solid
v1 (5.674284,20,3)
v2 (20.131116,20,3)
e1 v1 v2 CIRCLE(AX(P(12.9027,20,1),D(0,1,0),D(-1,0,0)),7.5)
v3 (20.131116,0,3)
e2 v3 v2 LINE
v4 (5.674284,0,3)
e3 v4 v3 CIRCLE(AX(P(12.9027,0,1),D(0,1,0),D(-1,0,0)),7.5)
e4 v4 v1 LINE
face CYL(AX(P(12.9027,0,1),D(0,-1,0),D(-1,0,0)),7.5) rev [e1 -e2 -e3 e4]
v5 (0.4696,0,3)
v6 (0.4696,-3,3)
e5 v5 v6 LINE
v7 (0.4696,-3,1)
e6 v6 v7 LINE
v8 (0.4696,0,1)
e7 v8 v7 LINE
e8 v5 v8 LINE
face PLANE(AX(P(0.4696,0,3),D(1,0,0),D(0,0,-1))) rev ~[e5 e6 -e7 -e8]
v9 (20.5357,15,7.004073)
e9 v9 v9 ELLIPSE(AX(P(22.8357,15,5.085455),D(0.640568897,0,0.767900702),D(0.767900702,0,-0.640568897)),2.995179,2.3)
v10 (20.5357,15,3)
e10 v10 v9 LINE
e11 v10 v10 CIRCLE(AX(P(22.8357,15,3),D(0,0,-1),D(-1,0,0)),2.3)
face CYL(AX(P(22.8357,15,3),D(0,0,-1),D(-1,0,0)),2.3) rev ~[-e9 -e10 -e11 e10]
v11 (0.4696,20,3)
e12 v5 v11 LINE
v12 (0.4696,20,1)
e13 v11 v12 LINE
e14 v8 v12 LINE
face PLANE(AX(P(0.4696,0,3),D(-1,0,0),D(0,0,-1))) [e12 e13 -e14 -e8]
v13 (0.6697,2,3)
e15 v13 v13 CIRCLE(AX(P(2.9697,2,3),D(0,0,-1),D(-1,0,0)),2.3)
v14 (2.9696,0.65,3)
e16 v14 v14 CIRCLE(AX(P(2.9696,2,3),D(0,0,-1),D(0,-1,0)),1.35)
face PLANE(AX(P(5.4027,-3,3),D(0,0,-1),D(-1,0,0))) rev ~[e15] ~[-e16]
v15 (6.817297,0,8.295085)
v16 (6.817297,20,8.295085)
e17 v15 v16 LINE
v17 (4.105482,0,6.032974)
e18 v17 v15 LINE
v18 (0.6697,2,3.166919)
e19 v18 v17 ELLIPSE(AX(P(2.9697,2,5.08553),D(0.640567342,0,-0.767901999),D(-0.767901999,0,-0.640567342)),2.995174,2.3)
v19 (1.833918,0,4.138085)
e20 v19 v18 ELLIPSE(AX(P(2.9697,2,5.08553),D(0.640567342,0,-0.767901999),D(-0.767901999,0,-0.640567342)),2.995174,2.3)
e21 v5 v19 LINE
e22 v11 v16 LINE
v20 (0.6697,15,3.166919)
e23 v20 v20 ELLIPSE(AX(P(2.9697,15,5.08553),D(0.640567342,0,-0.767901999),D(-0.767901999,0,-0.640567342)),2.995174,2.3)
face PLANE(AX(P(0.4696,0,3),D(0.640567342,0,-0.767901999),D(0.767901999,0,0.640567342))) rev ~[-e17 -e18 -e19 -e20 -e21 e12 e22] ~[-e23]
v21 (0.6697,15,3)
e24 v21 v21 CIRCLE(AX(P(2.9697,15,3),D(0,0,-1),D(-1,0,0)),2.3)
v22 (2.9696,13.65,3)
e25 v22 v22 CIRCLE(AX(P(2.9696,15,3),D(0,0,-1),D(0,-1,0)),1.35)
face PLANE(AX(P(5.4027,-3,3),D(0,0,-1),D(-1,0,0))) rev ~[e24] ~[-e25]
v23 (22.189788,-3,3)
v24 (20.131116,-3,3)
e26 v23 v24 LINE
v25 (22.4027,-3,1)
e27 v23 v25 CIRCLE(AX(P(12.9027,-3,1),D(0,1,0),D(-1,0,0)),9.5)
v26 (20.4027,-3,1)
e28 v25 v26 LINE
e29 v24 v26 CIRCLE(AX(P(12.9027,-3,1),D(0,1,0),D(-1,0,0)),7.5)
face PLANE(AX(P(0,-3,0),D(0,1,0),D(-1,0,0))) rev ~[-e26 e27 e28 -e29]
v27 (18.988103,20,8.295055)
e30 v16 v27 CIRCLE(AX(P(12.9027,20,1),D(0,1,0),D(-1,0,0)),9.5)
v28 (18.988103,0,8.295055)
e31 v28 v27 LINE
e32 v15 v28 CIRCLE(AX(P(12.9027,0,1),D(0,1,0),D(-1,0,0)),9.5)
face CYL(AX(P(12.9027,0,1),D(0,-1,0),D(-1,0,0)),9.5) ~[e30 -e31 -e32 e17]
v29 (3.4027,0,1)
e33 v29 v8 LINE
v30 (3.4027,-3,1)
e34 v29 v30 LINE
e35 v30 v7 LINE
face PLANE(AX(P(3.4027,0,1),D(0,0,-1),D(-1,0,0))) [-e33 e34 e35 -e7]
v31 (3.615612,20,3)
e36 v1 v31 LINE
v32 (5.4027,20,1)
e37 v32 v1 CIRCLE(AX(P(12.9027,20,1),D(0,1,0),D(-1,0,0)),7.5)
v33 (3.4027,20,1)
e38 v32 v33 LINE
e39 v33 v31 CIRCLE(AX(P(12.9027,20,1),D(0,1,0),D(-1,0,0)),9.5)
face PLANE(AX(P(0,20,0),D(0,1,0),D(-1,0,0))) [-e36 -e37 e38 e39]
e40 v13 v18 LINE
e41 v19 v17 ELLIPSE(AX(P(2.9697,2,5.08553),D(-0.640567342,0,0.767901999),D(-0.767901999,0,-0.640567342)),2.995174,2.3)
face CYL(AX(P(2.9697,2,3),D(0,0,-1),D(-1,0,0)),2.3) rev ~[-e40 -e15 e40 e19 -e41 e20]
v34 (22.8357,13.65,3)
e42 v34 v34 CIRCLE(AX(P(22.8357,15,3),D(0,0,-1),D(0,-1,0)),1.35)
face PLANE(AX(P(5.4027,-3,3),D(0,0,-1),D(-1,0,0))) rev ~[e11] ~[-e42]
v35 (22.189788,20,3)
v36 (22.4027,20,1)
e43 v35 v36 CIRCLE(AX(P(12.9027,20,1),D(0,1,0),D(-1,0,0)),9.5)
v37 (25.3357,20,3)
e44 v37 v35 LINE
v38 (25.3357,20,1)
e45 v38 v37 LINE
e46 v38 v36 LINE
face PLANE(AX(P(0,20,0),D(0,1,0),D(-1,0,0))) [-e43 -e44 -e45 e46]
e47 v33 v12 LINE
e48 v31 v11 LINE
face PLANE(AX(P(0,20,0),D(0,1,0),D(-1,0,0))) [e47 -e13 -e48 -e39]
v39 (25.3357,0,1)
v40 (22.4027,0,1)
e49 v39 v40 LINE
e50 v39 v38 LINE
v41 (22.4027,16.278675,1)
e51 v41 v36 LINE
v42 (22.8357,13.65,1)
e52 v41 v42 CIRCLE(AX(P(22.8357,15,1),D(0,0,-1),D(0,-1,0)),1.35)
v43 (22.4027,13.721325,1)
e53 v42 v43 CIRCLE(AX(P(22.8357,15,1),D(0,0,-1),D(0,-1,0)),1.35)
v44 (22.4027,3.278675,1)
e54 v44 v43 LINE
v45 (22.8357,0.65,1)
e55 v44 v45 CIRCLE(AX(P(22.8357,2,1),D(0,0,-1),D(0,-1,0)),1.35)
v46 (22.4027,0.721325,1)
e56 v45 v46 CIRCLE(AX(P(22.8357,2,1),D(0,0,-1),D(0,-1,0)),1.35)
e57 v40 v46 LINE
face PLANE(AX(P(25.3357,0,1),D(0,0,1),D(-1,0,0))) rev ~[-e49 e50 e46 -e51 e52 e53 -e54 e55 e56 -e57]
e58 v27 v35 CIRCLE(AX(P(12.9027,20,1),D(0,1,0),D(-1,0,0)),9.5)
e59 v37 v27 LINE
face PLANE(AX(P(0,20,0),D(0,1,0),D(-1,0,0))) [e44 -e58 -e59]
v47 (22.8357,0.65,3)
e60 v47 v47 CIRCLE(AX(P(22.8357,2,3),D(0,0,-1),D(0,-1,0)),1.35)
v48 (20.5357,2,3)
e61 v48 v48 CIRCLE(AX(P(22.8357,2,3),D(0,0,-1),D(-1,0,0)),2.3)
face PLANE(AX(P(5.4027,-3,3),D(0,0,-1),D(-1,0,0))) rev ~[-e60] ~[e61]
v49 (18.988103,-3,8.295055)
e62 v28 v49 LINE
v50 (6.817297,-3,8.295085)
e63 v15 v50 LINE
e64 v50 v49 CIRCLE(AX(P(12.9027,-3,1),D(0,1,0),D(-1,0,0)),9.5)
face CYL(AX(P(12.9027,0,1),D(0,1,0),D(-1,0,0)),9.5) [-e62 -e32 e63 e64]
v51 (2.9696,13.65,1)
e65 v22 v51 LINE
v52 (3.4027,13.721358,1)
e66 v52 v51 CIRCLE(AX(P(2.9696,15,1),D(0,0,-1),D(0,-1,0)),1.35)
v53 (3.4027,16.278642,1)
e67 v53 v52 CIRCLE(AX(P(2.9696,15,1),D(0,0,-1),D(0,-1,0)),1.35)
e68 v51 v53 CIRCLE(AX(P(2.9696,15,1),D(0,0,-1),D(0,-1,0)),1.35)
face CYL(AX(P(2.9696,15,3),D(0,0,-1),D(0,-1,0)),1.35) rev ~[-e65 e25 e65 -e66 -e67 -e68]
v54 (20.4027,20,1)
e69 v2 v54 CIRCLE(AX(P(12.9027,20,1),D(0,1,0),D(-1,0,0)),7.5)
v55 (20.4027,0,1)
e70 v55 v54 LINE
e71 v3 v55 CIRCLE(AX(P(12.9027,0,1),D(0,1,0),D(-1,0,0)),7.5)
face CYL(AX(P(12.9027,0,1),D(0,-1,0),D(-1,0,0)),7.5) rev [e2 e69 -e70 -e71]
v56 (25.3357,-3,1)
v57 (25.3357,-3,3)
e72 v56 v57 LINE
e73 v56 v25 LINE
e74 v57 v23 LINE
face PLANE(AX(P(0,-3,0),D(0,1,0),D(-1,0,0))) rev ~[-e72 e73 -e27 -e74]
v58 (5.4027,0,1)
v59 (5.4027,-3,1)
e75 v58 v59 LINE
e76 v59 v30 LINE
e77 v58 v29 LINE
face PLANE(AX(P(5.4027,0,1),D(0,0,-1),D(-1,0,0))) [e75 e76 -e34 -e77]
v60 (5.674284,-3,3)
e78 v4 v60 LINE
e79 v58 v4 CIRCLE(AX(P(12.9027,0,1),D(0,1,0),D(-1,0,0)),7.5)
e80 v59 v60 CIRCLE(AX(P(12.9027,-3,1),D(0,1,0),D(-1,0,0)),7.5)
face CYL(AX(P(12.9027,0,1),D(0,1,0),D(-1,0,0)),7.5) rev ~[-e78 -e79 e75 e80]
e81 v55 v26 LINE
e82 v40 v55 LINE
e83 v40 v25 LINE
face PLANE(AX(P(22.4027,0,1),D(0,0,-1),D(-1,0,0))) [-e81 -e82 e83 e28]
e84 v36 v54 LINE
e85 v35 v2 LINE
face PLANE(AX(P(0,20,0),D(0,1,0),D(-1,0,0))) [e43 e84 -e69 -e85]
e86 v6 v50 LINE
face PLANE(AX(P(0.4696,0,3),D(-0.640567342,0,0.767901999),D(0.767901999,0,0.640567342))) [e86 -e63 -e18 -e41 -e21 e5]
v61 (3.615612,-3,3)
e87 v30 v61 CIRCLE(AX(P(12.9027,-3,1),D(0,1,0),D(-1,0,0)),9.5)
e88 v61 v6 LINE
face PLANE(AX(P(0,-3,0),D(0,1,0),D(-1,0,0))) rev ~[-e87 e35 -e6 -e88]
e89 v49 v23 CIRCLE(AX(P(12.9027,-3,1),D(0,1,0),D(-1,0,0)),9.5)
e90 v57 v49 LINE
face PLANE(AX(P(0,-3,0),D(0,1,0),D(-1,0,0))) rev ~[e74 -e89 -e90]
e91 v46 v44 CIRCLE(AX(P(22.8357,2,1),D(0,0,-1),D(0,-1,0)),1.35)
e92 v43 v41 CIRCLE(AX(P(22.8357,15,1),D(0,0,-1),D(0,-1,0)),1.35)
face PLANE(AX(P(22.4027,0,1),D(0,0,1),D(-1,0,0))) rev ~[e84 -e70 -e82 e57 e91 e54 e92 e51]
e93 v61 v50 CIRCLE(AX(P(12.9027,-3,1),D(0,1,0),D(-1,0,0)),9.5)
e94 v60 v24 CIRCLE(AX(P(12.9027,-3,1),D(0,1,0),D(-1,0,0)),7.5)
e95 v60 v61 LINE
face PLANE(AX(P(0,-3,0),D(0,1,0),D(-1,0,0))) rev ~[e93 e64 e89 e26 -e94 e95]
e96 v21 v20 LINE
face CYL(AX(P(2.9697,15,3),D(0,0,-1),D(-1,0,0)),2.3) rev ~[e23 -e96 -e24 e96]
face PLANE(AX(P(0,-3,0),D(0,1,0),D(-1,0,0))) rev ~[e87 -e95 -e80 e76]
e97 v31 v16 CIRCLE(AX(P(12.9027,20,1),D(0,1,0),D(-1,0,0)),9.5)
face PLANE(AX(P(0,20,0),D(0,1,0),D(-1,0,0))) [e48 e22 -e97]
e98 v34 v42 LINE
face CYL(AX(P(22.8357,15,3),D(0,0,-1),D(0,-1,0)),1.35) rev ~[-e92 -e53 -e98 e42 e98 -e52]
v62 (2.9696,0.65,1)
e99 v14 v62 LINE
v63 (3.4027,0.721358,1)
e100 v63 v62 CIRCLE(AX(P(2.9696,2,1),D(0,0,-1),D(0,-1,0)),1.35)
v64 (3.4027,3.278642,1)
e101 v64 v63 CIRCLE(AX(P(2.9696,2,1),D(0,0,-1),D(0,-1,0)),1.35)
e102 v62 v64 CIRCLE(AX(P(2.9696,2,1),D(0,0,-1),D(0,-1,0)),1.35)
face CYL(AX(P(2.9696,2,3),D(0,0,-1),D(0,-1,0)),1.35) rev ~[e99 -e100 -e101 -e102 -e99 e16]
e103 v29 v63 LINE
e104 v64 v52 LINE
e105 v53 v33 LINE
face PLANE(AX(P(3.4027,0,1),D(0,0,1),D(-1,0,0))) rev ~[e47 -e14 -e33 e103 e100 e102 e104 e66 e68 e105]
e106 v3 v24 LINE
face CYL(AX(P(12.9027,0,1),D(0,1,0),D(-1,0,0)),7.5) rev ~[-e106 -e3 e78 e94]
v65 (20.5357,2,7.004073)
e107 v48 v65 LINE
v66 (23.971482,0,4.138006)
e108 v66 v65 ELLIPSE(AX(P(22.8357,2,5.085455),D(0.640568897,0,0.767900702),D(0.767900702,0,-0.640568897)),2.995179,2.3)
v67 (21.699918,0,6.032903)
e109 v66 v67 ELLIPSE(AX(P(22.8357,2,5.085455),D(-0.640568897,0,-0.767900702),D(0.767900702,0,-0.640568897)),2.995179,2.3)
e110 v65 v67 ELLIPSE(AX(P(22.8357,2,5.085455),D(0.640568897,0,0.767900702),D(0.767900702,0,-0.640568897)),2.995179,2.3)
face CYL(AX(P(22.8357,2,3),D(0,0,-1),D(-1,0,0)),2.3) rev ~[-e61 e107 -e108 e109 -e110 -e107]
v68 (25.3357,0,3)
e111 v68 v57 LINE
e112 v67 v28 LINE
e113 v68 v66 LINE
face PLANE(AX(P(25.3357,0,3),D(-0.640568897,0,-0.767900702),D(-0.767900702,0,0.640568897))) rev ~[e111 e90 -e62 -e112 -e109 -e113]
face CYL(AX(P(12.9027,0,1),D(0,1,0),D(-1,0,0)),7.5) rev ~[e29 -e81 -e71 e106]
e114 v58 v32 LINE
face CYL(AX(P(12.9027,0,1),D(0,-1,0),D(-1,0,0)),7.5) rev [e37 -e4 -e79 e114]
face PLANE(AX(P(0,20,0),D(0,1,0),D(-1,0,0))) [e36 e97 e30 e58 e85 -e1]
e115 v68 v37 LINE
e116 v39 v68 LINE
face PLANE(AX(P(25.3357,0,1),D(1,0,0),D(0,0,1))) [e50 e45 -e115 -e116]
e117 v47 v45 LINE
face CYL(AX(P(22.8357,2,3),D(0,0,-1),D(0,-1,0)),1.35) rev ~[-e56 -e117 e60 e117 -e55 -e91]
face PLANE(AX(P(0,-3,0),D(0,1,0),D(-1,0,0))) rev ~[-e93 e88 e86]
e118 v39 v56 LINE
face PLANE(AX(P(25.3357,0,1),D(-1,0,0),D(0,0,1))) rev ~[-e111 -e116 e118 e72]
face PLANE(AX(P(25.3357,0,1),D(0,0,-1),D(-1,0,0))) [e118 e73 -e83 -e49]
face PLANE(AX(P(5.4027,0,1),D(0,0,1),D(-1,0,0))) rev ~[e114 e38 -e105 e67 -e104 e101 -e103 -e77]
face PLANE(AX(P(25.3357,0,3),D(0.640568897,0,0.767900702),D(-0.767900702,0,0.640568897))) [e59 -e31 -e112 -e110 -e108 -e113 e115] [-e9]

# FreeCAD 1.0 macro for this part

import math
import FreeCAD as App
import Part
import Sketcher

V = App.Vector

doc = App.newDocument("Part")
params = doc.addObject("Spreadsheet::Sheet", "Params")
for row, (alias, value) in enumerate([
    ("sketch1_height", "2 mm"),
    ("sketch1_radius", "7.5 mm"),
    ("sketch1_radius2", "9.5 mm"),
    ("pad1_length", "20 mm"),
    ("pad1_length2", "3 mm"),
    ("sketch2_diameter", "4.6 mm"),
    ("pocket1_length", "10 mm"),
    ("sketch3_diameter", "2.7 mm"),
    ("hole_diameter", "2.7 mm"),
], start=1):
    params.set(f"A{row}", alias)
    params.set(f"B{row}", "=" + value)
    params.setAlias(f"B{row}", alias)

body = doc.addObject("PartDesign::Body", "Body")

sketch1 = body.newObject("Sketcher::SketchObject", "Sketch")
sketch1.AttachmentSupport = (doc.getObject("XZ_Plane"), [""])
sketch1.MapMode = "FlatFace"
sketch1.addGeometry([
    Part.ArcOfCircle(Part.Circle(V(12.9, 1, 0), V(0, 0, 1), 7.5), math.radians(0), math.radians(180)),
    Part.LineSegment(V(5.4, 1, 0), V(0.5, 1, 0)),
    Part.LineSegment(V(0.5, 1, 0), V(0.5, 3, 0)),
    Part.LineSegment(V(0.5, 3, 0), V(6.8, 8.3, 0)),
    Part.ArcOfCircle(Part.Circle(V(12.9, 1, 0), V(0, 0, 1), 9.5), math.radians(50), math.radians(130)),
    Part.LineSegment(V(19, 8.3, 0), V(25.3, 3, 0)),
    Part.LineSegment(V(25.3, 3, 0), V(25.3, 1, 0)),
    Part.LineSegment(V(25.3, 1, 0), V(20.4, 1, 0)),
], False)
sketch1.addConstraint([
    Sketcher.Constraint("Coincident", 0, 2, 1, 1),
    Sketcher.Constraint("Coincident", 1, 2, 2, 1),
    Sketcher.Constraint("Coincident", 2, 2, 3, 1),
    Sketcher.Constraint("Tangent", 3, 2, 4, 2),
    Sketcher.Constraint("Tangent", 4, 1, 5, 1),
    Sketcher.Constraint("Coincident", 5, 2, 6, 1),
    Sketcher.Constraint("Coincident", 6, 2, 7, 1),
    Sketcher.Constraint("Coincident", 7, 2, 0, 1),
    Sketcher.Constraint("Horizontal", 1),
    Sketcher.Constraint("Vertical", 2),
    Sketcher.Constraint("Vertical", 6),
    Sketcher.Constraint("Horizontal", 7),
    Sketcher.Constraint("Coincident", 4, 3, 0, 3),
    Sketcher.Constraint("Horizontal", 4, 3, 0, 2),
    Sketcher.Constraint("Horizontal", 3, 2, 4, 1),
    Sketcher.Constraint("Horizontal", 2, 2, 5, 2),
    Sketcher.Constraint("Horizontal", 1, 2, 6, 2),
    Sketcher.Constraint("DistanceY", 2, 1, 2, 2, 2.0),
    Sketcher.Constraint("DistanceY", -1, 1, 0, 3, 1.0),
    Sketcher.Constraint("Radius", 0, 7.5),
    Sketcher.Constraint("Radius", 4, 9.5),
    Sketcher.Constraint("DistanceX", 1, 2, 1, 1, 4.933),
    Sketcher.Constraint("DistanceX", -1, 1, 4, 1, 18.988),
])
sketch1.setExpression("Constraints[17]", "Params.sketch1_height")
sketch1.setExpression("Constraints[19]", "Params.sketch1_radius")
sketch1.setExpression("Constraints[20]", "Params.sketch1_radius2")
pad1 = body.newObject("PartDesign::Pad", "Pad")
pad1.Profile = sketch1
pad1.Type = "TwoLengths"
pad1.setExpression("Length", "Params.pad1_length")
pad1.setExpression("Length2", "Params.pad1_length2")
pad1.Reversed = True

sketch2 = body.newObject("Sketcher::SketchObject", "Sketch001")
sketch2.AttachmentSupport = (doc.getObject("XY_Plane"), [""])
sketch2.MapMode = "FlatFace"
sketch2.AttachmentOffset = App.Placement(V(0, 0, 3), App.Rotation())
sketch2.addGeometry([
    Part.Circle(V(3, 2, 0), V(0, 0, 1), 2.3),
    Part.Circle(V(3, 15, 0), V(0, 0, 1), 2.3),
    Part.Circle(V(22.8, 15, 0), V(0, 0, 1), 2.3),
    Part.Circle(V(22.8, 2, 0), V(0, 0, 1), 2.3),
], False)
sketch2.addConstraint([
    Sketcher.Constraint("Equal", 0, 1),
    Sketcher.Constraint("Equal", 1, 2),
    Sketcher.Constraint("Equal", 2, 3),
    Sketcher.Constraint("Horizontal", 1, 3, 2, 3),
    Sketcher.Constraint("Horizontal", 0, 3, 3, 3),
    Sketcher.Constraint("Vertical", 0, 3, 1, 3),
    Sketcher.Constraint("Vertical", 2, 3, 3, 3),
    Sketcher.Constraint("Diameter", 0, 4.6),
    Sketcher.Constraint("DistanceY", -1, 1, 0, 3, 2.0),
    Sketcher.Constraint("DistanceY", -1, 1, 1, 3, 15.0),
    Sketcher.Constraint("DistanceX", 1, 3, 2, 3, 19.866),
    Sketcher.Constraint("DistanceX", -1, 1, 0, 3, 2.9697),
])
sketch2.setExpression("Constraints[7]", "Params.sketch2_diameter")
pocket1 = body.newObject("PartDesign::Pocket", "Pocket")
pocket1.Profile = sketch2
pocket1.setExpression("Length", "Params.pocket1_length")
pocket1.Reversed = True

sketch3 = body.newObject("Sketcher::SketchObject", "Sketch002")
sketch3.AttachmentSupport = (doc.getObject("XY_Plane"), [""])
sketch3.MapMode = "FlatFace"
sketch3.AttachmentOffset = App.Placement(V(0, 0, 3), App.Rotation())
sketch3.addGeometry([
    Part.Circle(V(3, 15, 0), V(0, 0, 1), 1.4),
    Part.Circle(V(3, 2, 0), V(0, 0, 1), 1.4),
    Part.Circle(V(22.8, 2, 0), V(0, 0, 1), 1.4),
    Part.Circle(V(22.8, 15, 0), V(0, 0, 1), 1.4),
], False)
sketch3.addConstraint([
    Sketcher.Constraint("Equal", 0, 1),
    Sketcher.Constraint("Equal", 1, 2),
    Sketcher.Constraint("Equal", 2, 3),
    Sketcher.Constraint("Horizontal", 1, 3, 2, 3),
    Sketcher.Constraint("Horizontal", 0, 3, 3, 3),
    Sketcher.Constraint("Vertical", 0, 3, 1, 3),
    Sketcher.Constraint("Vertical", 2, 3, 3, 3),
    Sketcher.Constraint("Diameter", 0, 2.7),
    Sketcher.Constraint("DistanceY", -1, 1, 0, 3, 15.0),
    Sketcher.Constraint("DistanceY", -1, 1, 1, 3, 2.0),
    Sketcher.Constraint("DistanceX", 1, 3, 2, 3, 19.866),
    Sketcher.Constraint("DistanceX", -1, 1, 0, 3, 2.9696),
])
sketch3.setExpression("Constraints[7]", "Params.sketch3_diameter")
doc.recompute()
hole = body.newObject("PartDesign::Hole", "Hole")
hole.Profile = sketch3
hole.ThreadType = "None"
hole.setExpression("Diameter", "Params.hole_diameter")
hole.DepthType = "ThroughAll"

doc.recompute()
